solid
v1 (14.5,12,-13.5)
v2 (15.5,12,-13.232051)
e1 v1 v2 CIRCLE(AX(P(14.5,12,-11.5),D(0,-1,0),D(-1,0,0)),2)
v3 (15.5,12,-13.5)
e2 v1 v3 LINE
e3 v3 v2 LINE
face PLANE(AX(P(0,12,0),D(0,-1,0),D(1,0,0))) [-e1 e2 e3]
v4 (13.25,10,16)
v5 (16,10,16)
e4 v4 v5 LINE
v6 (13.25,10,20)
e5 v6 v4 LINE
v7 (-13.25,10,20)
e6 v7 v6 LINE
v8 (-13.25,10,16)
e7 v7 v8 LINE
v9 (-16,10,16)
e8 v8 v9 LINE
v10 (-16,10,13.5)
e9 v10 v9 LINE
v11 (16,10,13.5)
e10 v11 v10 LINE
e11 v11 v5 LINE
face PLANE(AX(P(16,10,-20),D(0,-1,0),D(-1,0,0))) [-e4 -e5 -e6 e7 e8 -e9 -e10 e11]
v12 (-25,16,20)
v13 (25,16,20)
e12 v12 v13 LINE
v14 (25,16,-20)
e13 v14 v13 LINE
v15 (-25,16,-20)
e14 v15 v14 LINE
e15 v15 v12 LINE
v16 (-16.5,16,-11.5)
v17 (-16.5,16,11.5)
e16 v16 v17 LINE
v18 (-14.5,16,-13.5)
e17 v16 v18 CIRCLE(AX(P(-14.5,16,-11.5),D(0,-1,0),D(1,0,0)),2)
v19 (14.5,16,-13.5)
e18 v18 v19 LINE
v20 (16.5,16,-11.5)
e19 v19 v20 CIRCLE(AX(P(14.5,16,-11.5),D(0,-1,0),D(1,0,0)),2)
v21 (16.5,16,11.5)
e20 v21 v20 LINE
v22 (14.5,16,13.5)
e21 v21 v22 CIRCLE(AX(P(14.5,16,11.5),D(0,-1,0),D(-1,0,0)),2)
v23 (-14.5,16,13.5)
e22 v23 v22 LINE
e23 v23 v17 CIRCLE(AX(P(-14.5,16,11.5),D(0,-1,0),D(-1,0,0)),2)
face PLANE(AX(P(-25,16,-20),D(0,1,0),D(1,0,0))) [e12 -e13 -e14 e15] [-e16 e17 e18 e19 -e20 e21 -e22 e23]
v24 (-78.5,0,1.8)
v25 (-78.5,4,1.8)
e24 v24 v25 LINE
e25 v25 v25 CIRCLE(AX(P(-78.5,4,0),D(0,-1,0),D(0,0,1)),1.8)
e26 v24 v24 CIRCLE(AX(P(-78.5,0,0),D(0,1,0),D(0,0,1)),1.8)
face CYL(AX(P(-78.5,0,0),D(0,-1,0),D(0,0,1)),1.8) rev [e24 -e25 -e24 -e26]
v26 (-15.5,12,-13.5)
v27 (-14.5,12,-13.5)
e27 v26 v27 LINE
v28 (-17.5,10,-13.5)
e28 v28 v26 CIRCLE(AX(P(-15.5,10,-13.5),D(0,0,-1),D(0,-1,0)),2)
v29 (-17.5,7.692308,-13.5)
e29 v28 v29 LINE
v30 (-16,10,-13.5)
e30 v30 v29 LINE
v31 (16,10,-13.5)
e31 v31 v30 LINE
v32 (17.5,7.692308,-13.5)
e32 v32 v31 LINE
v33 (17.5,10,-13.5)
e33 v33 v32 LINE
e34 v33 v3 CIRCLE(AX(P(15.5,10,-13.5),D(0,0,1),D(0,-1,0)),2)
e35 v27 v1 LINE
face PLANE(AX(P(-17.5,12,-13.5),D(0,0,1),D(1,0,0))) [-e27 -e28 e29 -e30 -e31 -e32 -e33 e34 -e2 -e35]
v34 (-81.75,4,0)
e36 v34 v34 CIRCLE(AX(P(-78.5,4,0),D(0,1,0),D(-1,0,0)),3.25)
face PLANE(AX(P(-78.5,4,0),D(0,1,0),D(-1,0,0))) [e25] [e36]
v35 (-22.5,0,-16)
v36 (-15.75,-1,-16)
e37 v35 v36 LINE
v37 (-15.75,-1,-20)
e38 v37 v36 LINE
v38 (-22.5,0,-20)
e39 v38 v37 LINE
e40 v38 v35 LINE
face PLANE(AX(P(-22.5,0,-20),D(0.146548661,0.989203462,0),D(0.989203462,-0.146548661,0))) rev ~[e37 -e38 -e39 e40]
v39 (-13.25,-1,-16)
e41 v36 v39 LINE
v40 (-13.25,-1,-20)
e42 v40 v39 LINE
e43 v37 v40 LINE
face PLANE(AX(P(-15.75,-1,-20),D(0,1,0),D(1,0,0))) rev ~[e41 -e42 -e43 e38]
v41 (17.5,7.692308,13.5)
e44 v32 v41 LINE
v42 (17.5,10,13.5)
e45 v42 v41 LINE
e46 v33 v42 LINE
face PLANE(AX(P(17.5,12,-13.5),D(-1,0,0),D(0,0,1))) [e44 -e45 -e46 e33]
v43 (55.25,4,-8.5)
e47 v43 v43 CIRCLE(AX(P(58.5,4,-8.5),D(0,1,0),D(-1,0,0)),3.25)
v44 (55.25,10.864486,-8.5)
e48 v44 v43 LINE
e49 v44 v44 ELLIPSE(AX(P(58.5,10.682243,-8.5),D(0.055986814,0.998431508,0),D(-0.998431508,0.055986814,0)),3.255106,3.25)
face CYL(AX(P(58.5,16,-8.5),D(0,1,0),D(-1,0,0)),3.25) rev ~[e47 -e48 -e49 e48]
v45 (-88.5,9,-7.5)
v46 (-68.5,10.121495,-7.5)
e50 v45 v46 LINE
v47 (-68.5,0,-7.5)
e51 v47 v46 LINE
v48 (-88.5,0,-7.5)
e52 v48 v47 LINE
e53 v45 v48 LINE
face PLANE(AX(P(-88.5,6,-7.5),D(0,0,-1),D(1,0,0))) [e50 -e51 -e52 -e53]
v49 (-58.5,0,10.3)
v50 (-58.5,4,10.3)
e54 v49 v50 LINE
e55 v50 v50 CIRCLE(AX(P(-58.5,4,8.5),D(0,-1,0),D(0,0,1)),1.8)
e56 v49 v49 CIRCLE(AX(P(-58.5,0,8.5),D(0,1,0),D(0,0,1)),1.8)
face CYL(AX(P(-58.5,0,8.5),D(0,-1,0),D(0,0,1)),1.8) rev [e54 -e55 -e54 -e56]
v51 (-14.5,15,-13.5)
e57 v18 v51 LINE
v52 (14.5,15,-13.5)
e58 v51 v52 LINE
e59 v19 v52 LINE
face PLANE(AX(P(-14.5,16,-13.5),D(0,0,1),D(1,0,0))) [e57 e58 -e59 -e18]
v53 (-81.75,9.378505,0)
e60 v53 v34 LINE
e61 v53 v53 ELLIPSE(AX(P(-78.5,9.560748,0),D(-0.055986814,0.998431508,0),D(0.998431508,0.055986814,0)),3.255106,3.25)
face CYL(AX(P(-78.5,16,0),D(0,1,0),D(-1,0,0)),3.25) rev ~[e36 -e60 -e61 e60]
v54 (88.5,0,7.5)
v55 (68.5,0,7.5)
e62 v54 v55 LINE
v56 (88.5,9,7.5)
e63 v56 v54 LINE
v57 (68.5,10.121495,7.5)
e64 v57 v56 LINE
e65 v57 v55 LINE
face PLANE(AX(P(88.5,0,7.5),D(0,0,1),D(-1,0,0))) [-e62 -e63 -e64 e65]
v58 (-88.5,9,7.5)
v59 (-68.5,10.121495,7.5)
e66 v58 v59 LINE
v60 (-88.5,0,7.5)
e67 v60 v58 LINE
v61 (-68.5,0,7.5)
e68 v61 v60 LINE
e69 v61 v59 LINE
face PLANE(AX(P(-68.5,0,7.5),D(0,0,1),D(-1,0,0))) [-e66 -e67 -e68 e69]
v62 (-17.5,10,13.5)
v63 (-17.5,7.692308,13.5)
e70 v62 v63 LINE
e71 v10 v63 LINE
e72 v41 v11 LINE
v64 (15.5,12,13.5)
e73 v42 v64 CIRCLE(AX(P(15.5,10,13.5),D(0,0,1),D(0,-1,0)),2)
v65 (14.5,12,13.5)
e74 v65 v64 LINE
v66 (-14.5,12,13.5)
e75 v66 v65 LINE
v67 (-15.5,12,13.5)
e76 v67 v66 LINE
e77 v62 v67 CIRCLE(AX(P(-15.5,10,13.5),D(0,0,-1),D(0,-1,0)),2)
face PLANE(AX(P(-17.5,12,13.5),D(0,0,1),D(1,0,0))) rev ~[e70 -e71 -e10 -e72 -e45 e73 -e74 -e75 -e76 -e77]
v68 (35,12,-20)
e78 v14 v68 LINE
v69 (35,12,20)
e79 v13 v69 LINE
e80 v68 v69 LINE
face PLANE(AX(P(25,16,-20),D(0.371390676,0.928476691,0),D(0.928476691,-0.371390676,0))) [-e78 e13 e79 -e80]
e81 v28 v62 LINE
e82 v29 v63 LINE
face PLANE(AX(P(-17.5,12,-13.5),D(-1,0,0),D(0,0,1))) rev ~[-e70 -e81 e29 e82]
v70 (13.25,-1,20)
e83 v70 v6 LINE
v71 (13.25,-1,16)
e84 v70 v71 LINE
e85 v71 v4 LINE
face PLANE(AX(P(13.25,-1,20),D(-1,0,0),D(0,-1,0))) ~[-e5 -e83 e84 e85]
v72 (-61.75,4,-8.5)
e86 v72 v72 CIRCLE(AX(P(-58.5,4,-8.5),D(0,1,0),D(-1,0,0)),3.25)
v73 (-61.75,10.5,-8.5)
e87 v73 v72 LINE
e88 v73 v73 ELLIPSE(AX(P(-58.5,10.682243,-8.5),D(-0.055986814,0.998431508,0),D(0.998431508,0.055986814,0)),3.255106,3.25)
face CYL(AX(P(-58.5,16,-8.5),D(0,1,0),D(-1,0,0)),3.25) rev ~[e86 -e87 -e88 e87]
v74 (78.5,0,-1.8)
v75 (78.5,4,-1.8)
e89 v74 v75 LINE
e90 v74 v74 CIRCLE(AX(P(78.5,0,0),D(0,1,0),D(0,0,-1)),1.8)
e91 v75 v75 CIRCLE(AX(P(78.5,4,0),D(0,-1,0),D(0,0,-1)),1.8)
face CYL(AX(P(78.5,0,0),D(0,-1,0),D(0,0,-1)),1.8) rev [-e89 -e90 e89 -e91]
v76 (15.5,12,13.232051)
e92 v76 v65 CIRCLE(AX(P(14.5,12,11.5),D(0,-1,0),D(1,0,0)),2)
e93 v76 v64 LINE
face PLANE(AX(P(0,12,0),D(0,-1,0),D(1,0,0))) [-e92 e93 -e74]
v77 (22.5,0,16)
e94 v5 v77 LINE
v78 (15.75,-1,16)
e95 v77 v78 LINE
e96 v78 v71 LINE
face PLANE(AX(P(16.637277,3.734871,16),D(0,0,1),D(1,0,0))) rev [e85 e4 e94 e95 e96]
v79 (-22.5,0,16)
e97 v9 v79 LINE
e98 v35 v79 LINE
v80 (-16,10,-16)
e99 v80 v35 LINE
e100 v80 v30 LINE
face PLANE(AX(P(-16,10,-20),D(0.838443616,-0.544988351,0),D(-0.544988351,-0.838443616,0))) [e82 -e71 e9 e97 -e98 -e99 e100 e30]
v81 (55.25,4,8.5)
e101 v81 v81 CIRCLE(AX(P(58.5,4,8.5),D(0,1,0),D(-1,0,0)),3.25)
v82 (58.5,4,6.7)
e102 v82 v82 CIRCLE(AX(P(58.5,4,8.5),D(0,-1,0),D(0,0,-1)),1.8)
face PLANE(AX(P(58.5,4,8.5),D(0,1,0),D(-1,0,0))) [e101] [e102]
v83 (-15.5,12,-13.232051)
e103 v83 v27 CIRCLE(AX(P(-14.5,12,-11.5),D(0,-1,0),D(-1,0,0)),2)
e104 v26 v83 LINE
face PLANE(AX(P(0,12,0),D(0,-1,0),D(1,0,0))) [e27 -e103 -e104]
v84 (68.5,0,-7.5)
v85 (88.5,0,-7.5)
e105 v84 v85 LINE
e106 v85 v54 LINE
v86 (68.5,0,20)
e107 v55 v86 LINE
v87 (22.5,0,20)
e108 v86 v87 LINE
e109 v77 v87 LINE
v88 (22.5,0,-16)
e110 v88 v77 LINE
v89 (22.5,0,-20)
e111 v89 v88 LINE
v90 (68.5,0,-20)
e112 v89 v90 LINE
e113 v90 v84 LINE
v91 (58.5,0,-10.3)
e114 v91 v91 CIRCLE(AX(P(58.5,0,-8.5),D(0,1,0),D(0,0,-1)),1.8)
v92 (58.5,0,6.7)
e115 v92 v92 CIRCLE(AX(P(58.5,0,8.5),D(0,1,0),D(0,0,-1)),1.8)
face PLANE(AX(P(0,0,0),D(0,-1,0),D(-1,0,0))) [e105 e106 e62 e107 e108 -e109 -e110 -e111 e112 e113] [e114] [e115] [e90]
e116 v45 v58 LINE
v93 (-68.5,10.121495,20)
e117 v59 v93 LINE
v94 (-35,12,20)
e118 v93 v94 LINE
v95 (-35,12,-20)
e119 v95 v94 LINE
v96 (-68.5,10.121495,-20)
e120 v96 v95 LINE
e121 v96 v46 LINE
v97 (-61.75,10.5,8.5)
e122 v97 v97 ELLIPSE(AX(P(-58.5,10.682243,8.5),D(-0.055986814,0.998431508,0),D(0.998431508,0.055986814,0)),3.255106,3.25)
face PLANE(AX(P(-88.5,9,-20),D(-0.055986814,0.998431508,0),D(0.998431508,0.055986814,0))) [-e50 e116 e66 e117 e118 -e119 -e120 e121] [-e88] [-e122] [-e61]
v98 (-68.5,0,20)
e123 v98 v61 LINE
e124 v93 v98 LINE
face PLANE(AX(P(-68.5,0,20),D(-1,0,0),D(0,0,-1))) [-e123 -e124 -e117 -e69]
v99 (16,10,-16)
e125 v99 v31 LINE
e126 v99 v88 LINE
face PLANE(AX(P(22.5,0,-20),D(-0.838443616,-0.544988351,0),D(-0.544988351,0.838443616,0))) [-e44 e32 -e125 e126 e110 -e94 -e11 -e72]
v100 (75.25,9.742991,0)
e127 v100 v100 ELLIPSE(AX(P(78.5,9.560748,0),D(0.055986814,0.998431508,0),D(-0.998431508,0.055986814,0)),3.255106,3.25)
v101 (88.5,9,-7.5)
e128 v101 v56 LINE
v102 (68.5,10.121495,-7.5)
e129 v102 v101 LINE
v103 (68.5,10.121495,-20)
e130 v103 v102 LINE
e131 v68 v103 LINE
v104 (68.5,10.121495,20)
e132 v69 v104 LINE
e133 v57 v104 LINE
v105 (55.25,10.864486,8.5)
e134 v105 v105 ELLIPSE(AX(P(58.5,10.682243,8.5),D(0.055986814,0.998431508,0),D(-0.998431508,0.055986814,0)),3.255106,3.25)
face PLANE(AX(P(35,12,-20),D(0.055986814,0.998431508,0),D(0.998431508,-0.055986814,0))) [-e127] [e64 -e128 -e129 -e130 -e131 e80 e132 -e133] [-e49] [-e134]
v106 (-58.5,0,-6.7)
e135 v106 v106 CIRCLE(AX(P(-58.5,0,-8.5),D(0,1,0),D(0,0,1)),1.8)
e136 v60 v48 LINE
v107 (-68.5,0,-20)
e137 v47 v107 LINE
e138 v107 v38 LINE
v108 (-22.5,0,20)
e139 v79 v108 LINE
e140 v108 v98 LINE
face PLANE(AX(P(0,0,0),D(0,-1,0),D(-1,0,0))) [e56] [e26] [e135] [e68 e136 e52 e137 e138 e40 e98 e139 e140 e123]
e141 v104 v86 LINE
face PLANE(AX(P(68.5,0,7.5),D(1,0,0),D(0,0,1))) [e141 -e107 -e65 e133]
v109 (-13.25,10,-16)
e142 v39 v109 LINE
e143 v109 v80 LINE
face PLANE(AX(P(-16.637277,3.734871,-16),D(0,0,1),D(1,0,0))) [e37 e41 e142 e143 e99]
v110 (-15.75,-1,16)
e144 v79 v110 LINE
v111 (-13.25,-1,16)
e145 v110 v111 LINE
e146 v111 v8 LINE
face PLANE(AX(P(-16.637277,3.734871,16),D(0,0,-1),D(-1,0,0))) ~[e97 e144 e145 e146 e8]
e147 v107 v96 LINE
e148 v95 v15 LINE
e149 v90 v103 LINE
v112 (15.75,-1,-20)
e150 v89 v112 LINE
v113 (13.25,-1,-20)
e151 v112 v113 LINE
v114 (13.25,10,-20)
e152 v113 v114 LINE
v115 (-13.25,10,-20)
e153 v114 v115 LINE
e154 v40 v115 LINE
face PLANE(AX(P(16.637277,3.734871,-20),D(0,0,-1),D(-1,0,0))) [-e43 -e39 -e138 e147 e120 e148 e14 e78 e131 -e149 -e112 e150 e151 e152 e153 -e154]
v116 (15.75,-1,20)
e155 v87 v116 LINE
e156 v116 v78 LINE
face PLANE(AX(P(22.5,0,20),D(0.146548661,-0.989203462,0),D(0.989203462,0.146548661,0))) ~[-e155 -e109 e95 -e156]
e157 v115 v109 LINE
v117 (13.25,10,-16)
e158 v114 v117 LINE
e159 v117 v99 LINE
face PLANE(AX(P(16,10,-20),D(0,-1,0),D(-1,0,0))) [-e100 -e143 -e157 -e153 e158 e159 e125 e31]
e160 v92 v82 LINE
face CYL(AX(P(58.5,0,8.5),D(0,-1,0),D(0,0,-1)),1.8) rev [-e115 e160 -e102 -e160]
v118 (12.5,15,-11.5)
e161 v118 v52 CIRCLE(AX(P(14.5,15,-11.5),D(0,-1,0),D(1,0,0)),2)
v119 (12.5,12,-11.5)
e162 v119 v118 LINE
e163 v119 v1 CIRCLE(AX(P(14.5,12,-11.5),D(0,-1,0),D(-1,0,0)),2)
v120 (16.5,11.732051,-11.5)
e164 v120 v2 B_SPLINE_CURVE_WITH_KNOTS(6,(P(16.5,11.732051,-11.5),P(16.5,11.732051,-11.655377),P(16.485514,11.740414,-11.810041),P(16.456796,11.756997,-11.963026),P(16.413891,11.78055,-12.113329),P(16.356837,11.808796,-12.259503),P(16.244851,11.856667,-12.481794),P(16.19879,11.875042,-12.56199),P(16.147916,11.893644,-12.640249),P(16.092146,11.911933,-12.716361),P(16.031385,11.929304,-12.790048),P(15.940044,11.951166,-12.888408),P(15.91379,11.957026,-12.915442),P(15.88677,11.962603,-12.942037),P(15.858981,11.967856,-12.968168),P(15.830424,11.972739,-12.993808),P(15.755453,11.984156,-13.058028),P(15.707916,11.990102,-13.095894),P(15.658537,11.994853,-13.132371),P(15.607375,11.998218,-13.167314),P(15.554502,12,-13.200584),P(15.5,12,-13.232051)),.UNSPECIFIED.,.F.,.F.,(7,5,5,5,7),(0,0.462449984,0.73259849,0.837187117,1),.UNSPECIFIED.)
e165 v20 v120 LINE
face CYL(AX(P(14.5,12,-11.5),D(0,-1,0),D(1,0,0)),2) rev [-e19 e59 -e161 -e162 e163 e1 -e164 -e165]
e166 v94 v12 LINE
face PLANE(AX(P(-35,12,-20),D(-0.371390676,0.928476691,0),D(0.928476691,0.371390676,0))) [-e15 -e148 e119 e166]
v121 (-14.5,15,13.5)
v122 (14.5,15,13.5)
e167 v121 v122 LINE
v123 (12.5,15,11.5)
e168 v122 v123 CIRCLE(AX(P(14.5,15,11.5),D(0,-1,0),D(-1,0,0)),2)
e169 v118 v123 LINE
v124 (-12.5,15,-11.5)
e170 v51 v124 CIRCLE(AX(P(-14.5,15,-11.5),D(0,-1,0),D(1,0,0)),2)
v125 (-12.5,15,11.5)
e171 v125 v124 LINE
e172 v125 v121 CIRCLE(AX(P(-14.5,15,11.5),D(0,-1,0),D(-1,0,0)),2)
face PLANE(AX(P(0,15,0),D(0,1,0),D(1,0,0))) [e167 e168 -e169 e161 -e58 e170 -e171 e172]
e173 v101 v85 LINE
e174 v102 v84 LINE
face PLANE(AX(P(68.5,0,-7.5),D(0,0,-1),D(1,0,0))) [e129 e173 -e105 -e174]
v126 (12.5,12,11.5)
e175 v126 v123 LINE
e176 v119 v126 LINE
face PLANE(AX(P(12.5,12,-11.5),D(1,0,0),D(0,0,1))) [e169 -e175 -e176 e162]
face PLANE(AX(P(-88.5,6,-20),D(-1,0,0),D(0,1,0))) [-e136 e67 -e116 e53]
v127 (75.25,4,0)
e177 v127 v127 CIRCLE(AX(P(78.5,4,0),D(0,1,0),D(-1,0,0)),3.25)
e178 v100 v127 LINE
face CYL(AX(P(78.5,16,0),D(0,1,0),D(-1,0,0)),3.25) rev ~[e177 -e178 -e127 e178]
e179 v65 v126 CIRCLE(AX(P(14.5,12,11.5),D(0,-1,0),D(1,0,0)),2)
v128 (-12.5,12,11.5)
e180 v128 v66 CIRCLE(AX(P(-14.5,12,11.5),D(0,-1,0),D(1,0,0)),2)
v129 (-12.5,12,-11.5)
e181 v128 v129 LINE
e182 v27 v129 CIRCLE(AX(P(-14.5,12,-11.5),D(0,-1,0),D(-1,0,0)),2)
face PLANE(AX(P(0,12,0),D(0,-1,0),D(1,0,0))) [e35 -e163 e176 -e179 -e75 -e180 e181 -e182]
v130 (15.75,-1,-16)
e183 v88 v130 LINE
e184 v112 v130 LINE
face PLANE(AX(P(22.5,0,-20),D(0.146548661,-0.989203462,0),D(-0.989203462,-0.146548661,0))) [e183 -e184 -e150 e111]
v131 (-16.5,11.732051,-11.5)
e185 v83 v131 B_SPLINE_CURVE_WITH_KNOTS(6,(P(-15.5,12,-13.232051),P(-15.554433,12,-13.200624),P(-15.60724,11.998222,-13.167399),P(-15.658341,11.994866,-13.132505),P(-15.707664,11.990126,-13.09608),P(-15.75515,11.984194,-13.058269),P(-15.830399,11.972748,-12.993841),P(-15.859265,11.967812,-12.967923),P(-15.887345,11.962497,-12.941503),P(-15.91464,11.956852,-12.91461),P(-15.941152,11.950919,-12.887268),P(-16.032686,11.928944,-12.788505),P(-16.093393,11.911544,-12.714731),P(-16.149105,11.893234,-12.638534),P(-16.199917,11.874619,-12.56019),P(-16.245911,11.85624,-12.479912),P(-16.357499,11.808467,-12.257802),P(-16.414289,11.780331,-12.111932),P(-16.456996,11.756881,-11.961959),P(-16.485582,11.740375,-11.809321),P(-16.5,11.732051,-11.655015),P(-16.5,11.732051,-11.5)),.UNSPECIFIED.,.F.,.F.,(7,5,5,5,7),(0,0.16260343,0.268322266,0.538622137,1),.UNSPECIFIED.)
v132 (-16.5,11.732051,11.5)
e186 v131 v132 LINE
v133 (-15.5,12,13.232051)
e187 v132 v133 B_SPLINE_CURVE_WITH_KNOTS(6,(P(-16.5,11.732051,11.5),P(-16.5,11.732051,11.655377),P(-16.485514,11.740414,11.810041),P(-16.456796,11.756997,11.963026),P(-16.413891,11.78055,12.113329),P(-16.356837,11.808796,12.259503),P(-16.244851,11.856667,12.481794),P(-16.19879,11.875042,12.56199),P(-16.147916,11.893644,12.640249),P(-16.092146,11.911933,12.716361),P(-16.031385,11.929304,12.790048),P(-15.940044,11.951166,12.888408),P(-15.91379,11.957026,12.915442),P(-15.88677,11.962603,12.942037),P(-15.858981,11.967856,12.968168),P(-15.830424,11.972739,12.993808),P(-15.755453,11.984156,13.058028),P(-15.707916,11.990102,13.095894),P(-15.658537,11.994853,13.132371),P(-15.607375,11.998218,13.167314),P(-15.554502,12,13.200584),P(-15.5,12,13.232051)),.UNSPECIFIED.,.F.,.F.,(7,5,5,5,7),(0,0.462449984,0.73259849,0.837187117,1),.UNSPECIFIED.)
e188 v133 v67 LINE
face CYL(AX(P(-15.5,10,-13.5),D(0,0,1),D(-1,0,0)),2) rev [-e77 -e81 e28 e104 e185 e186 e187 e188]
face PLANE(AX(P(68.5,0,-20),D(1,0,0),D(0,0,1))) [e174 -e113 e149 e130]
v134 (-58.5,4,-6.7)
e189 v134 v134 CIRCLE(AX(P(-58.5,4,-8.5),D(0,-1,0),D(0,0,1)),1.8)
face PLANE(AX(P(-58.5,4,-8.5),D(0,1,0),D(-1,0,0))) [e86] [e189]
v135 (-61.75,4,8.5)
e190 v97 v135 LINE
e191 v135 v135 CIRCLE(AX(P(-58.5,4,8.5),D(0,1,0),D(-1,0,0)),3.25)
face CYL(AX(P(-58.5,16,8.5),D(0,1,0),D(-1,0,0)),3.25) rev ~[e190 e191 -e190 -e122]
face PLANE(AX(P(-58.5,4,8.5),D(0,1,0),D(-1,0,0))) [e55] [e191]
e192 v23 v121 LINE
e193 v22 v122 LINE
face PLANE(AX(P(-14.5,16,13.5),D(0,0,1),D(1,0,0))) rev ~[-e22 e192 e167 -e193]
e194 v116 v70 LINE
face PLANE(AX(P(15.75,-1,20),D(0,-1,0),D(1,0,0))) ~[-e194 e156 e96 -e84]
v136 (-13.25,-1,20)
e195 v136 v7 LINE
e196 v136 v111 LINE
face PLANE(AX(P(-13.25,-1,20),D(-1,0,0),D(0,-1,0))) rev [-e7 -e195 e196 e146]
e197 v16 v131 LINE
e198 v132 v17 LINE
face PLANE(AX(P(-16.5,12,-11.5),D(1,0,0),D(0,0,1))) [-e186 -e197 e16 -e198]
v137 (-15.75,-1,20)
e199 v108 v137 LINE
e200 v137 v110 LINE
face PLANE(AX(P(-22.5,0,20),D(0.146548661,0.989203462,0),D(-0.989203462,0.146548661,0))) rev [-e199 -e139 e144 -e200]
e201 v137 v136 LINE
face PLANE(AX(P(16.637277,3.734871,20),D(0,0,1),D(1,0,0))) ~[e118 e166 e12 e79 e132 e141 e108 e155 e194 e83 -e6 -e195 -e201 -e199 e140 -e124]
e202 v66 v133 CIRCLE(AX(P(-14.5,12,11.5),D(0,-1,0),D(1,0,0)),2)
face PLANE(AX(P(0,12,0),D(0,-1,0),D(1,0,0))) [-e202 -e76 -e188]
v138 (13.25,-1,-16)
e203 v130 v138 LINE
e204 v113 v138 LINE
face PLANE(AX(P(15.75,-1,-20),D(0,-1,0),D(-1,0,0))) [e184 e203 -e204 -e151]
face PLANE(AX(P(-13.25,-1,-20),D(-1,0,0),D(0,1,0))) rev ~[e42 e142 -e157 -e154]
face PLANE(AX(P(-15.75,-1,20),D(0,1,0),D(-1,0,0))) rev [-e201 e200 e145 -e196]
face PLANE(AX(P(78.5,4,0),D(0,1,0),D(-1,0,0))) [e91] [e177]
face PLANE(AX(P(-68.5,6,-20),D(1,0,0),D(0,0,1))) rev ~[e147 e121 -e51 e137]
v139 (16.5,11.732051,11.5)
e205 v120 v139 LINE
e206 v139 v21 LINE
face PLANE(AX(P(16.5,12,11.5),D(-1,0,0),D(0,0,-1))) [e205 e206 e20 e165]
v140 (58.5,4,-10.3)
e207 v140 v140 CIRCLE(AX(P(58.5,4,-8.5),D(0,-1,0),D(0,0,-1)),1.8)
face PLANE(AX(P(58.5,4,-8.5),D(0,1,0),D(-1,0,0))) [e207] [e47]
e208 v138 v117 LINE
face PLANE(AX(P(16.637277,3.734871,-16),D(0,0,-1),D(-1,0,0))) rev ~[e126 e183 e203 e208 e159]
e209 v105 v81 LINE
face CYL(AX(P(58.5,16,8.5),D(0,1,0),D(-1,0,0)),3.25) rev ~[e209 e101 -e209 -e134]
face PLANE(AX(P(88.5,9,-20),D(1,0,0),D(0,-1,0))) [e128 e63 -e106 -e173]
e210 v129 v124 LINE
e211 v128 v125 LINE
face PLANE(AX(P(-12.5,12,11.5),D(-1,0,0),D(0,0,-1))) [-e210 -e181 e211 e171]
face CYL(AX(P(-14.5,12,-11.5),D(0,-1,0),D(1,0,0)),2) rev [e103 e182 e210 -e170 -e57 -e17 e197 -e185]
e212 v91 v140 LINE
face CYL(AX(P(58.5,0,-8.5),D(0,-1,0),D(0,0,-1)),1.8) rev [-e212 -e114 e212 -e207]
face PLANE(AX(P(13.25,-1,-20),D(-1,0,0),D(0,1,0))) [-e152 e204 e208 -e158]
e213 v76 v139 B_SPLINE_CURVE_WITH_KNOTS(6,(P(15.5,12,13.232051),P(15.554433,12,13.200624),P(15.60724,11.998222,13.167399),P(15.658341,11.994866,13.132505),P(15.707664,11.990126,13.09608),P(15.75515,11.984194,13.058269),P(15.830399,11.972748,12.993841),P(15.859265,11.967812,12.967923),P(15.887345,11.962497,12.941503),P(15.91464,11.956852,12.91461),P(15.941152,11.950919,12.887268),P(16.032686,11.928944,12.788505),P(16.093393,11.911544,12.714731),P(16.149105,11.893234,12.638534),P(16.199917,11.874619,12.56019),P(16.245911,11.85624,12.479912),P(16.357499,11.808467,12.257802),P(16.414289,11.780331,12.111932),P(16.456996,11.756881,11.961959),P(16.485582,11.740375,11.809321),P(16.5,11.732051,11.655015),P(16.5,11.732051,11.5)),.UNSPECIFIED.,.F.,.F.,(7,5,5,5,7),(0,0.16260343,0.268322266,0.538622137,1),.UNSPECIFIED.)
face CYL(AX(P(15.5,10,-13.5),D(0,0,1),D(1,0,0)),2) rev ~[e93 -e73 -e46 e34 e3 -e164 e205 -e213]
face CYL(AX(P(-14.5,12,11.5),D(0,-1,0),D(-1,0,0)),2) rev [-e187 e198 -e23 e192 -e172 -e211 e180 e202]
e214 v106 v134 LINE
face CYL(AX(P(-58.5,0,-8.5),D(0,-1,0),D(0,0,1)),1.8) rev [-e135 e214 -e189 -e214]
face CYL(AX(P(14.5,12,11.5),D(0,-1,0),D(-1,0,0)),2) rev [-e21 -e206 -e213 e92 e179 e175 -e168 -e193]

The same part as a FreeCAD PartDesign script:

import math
import FreeCAD as App
import Part
import Sketcher
Q = App.Units.Quantity


def edges_at(feature, points):
    """Names of the edges that pass closest to the given points."""
    edges = feature.Shape.Edges
    near = lambda p: min(range(len(edges)), key=lambda i: edges[i].distToShape(Part.Vertex(*p))[0])
    return sorted({f"Edge{near(p) + 1}" for p in points})


def add_polygon(sketch, points):
    """Adds a closed chain of lines whose ends are joined by coincident constraints."""
    first, n = sketch.GeometryCount, len(points)
    for a, b in zip(points, points[1:] + points[:1]):
        sketch.addGeometry(Part.LineSegment(App.Vector(*a, 0), App.Vector(*b, 0)), False)
    for i in range(n):
        sketch.addConstraint(Sketcher.Constraint("Coincident", first + i, 2, first + (i + 1) % n, 1))

doc = App.newDocument("Part")
body = doc.addObject("PartDesign::Body", "Body")

sketch1 = body.newObject("Sketcher::SketchObject", "Sketch")
sketch1.AttachmentSupport = (doc.getObject("XZ_Plane"), [""])
sketch1.MapMode = "FlatFace"
add_polygon(sketch1, [(68.5, -7.5), (68.5, -20), (-68.5, -20), (-68.5, -7.5), (-88.5, -7.5), (-88.5, 7.5), (-68.5, 7.5), (-68.5, 20), (68.5, 20), (68.5, 7.5), (88.5, 7.5), (88.5, -7.5)])
sketch1.addGeometry(Part.Circle(App.Vector(58.5, 8.5, 0), App.Vector(0, 0, 1), 1.8), False)
sketch1.addGeometry(Part.Circle(App.Vector(-58.5, 8.5, 0), App.Vector(0, 0, 1), 1.8), False)
sketch1.addGeometry(Part.Circle(App.Vector(78.5, 0, 0), App.Vector(0, 0, 1), 1.8), False)
sketch1.addGeometry(Part.Circle(App.Vector(58.5, -8.5, 0), App.Vector(0, 0, 1), 1.8), False)
sketch1.addGeometry(Part.Circle(App.Vector(-78.5, 0, 0), App.Vector(0, 0, 1), 1.8), False)
sketch1.addGeometry(Part.Circle(App.Vector(-58.5, -8.5, 0), App.Vector(0, 0, 1), 1.8), False)
sketch1.addConstraint(Sketcher.Constraint("Vertical", 0))
sketch1.addConstraint(Sketcher.Constraint("Horizontal", 1))
sketch1.addConstraint(Sketcher.Constraint("Vertical", 2))
sketch1.addConstraint(Sketcher.Constraint("Horizontal", 3))
sketch1.addConstraint(Sketcher.Constraint("Vertical", 4))
sketch1.addConstraint(Sketcher.Constraint("Horizontal", 5))
sketch1.addConstraint(Sketcher.Constraint("Vertical", 6))
sketch1.addConstraint(Sketcher.Constraint("Horizontal", 7))
sketch1.addConstraint(Sketcher.Constraint("Vertical", 8))
sketch1.addConstraint(Sketcher.Constraint("Horizontal", 9))
sketch1.addConstraint(Sketcher.Constraint("Vertical", 10))
sketch1.addConstraint(Sketcher.Constraint("Horizontal", 11))
sketch1.addConstraint(Sketcher.Constraint("Equal", 12, 13))
sketch1.addConstraint(Sketcher.Constraint("Equal", 13, 14))
sketch1.addConstraint(Sketcher.Constraint("Equal", 14, 15))
sketch1.addConstraint(Sketcher.Constraint("Equal", 15, 16))
sketch1.addConstraint(Sketcher.Constraint("Equal", 16, 17))
sketch1.addConstraint(Sketcher.Constraint("Symmetric", 13, 3, 15, 3, -1, 1))
sketch1.addConstraint(Sketcher.Constraint("Symmetric", 14, 3, 16, 3, -1, 1))
sketch1.addConstraint(Sketcher.Constraint("Symmetric", 12, 3, 17, 3, -1, 1))
sketch1.addConstraint(Sketcher.Constraint("Symmetric", 0, 2, 6, 2, -1, 1))
sketch1.addConstraint(Sketcher.Constraint("Symmetric", 2, 2, 8, 2, -1, 1))
sketch1.addConstraint(Sketcher.Constraint("Symmetric", 4, 2, 10, 2, -1, 1))
sketch1.addConstraint(Sketcher.Constraint("Symmetric", 12, 3, 13, 3, -2))
sketch1.addConstraint(Sketcher.Constraint("Symmetric", 5, 2, 8, 2, -2))
sketch1.addConstraint(Sketcher.Constraint("PointOnObject", 14, 3, -1))
sketch1.addConstraint(Sketcher.Constraint("Diameter", 12, Q("3.6 mm")))
sketch1.addConstraint(Sketcher.Constraint("DistanceX", 1, 2, 1, 1, Q("137 mm")))
sketch1.addConstraint(Sketcher.Constraint("DistanceX", 3, 2, 3, 1, Q("20 mm")))
sketch1.addConstraint(Sketcher.Constraint("DistanceY", 4, 1, 4, 2, Q("15 mm")))
sketch1.addConstraint(Sketcher.Constraint("DistanceY", 0, 2, 0, 1, Q("12.5 mm")))
sketch1.addConstraint(Sketcher.Constraint("DistanceX", 13, 3, 12, 3, Q("117 mm")))
sketch1.addConstraint(Sketcher.Constraint("DistanceX", 12, 3, 14, 3, Q("20 mm")))
sketch1.addConstraint(Sketcher.Constraint("DistanceY", 15, 3, 12, 3, Q("17 mm")))
pad1 = body.newObject("PartDesign::Pad", "Pad")
pad1.Profile = sketch1
pad1.Length = 6
pad1.Reversed = True

sketch2 = body.newObject("Sketcher::SketchObject", "Sketch001")
sketch2.AttachmentSupport = (doc.getObject("XY_Plane"), [""])
sketch2.MapMode = "FlatFace"
sketch2.AttachmentOffset = App.Placement(App.Vector(0, 0, -20), App.Rotation())
add_polygon(sketch2, [(88.5, 6), (-88.5, 6), (-88.5, 9), (-35, 12), (-25, 16), (25, 16), (35, 12), (88.5, 9)])
sketch2.addConstraint(Sketcher.Constraint("Horizontal", 0))
sketch2.addConstraint(Sketcher.Constraint("Vertical", 1))
sketch2.addConstraint(Sketcher.Constraint("Horizontal", 4))
sketch2.addConstraint(Sketcher.Constraint("Vertical", 7))
sketch2.addConstraint(Sketcher.Constraint("Symmetric", 2, 2, 5, 2, -2))
sketch2.addConstraint(Sketcher.Constraint("Symmetric", 1, 2, 6, 2, -2))
sketch2.addConstraint(Sketcher.Constraint("Equal", 3, 5))
sketch2.addConstraint(Sketcher.Constraint("DistanceX", 0, 2, 0, 1, Q("177 mm")))
sketch2.addConstraint(Sketcher.Constraint("DistanceX", 4, 1, 4, 2, Q("50 mm")))
sketch2.addConstraint(Sketcher.Constraint("DistanceY", 1, 1, 1, 2, Q("3 mm")))
sketch2.addConstraint(Sketcher.Constraint("DistanceY", -1, 1, 0, 2, Q("6 mm")))
sketch2.addConstraint(Sketcher.Constraint("DistanceX", 2, 2, -1, 1, Q("35 mm")))
sketch2.addConstraint(Sketcher.Constraint("DistanceY", -1, 1, 2, 2, Q("12 mm")))
sketch2.addConstraint(Sketcher.Constraint("DistanceY", -1, 1, 3, 2, Q("16 mm")))
pad2 = body.newObject("PartDesign::Pad", "Pad001")
pad2.Profile = sketch2
pad2.Length = 40

sketch3 = body.newObject("Sketcher::SketchObject", "Sketch002")
sketch3.AttachmentSupport = (doc.getObject("XZ_Plane"), [""])
sketch3.MapMode = "FlatFace"
sketch3.AttachmentOffset = App.Placement(App.Vector(0, 0, -6), App.Rotation())
add_polygon(sketch3, [(-88, 20), (-88, 8), (-68, 8), (-68, 20)])
sketch3.addConstraint(Sketcher.Constraint("Vertical", 0))
sketch3.addConstraint(Sketcher.Constraint("Horizontal", 1))
sketch3.addConstraint(Sketcher.Constraint("Vertical", 2))
sketch3.addConstraint(Sketcher.Constraint("Horizontal", 3))
sketch3.addConstraint(Sketcher.Constraint("DistanceX", 1, 1, 1, 2, Q("20 mm")))
sketch3.addConstraint(Sketcher.Constraint("DistanceY", 0, 2, 0, 1, Q("12.5 mm")))
sketch3.addConstraint(Sketcher.Constraint("DistanceY", -1, 1, 2, 2, Q("20 mm")))
sketch3.addConstraint(Sketcher.Constraint("DistanceX", 0, 2, -1, 1, Q("88.5 mm")))
pocket1 = body.newObject("PartDesign::Pocket", "Pocket")
pocket1.Profile = sketch3
pocket1.Type = "UpToFirst"

sketch4 = body.newObject("Sketcher::SketchObject", "Sketch003")
sketch4.AttachmentSupport = (doc.getObject("XZ_Plane"), [""])
sketch4.MapMode = "FlatFace"
sketch4.AttachmentOffset = App.Placement(App.Vector(0, 0, -6), App.Rotation())
add_polygon(sketch4, [(-88, -8), (-88, -20), (-68, -20), (-68, -8)])
sketch4.addConstraint(Sketcher.Constraint("Vertical", 0))
sketch4.addConstraint(Sketcher.Constraint("Horizontal", 1))
sketch4.addConstraint(Sketcher.Constraint("Vertical", 2))
sketch4.addConstraint(Sketcher.Constraint("Horizontal", 3))
sketch4.addConstraint(Sketcher.Constraint("DistanceX", 1, 1, 1, 2, Q("20 mm")))
sketch4.addConstraint(Sketcher.Constraint("DistanceY", 0, 2, 0, 1, Q("12.5 mm")))
sketch4.addConstraint(Sketcher.Constraint("DistanceY", 0, 2, -1, 1, Q("20 mm")))
sketch4.addConstraint(Sketcher.Constraint("DistanceX", 0, 2, -1, 1, Q("88.5 mm")))
pocket2 = body.newObject("PartDesign::Pocket", "Pocket001")
pocket2.Profile = sketch4
pocket2.Type = "UpToFirst"

sketch5 = body.newObject("Sketcher::SketchObject", "Sketch004")
sketch5.AttachmentSupport = (doc.getObject("XZ_Plane"), [""])
sketch5.MapMode = "FlatFace"
sketch5.AttachmentOffset = App.Placement(App.Vector(0, 0, -6), App.Rotation())
add_polygon(sketch5, [(68, 20), (68, 8), (88, 8), (88, 20)])
sketch5.addConstraint(Sketcher.Constraint("Vertical", 0))
sketch5.addConstraint(Sketcher.Constraint("Horizontal", 1))
sketch5.addConstraint(Sketcher.Constraint("Vertical", 2))
sketch5.addConstraint(Sketcher.Constraint("Horizontal", 3))
sketch5.addConstraint(Sketcher.Constraint("DistanceX", 1, 1, 1, 2, Q("20 mm")))
sketch5.addConstraint(Sketcher.Constraint("DistanceY", 0, 2, 0, 1, Q("12.5 mm")))
sketch5.addConstraint(Sketcher.Constraint("DistanceY", -1, 1, 2, 2, Q("20 mm")))
sketch5.addConstraint(Sketcher.Constraint("DistanceX", -1, 1, 0, 2, Q("68.5 mm")))
pocket3 = body.newObject("PartDesign::Pocket", "Pocket002")
pocket3.Profile = sketch5
pocket3.Type = "UpToFirst"

sketch6 = body.newObject("Sketcher::SketchObject", "Sketch005")
sketch6.AttachmentSupport = (doc.getObject("XZ_Plane"), [""])
sketch6.MapMode = "FlatFace"
sketch6.AttachmentOffset = App.Placement(App.Vector(0, 0, -6), App.Rotation())
add_polygon(sketch6, [(68, -8), (68, -20), (88, -20), (88, -8)])
sketch6.addConstraint(Sketcher.Constraint("Vertical", 0))
sketch6.addConstraint(Sketcher.Constraint("Horizontal", 1))
sketch6.addConstraint(Sketcher.Constraint("Vertical", 2))
sketch6.addConstraint(Sketcher.Constraint("Horizontal", 3))
sketch6.addConstraint(Sketcher.Constraint("DistanceX", 1, 1, 1, 2, Q("20 mm")))
sketch6.addConstraint(Sketcher.Constraint("DistanceY", 0, 2, 0, 1, Q("12.5 mm")))
sketch6.addConstraint(Sketcher.Constraint("DistanceY", 0, 2, -1, 1, Q("20 mm")))
sketch6.addConstraint(Sketcher.Constraint("DistanceX", -1, 1, 0, 2, Q("68.5 mm")))
pocket4 = body.newObject("PartDesign::Pocket", "Pocket003")
pocket4.Profile = sketch6
pocket4.Type = "UpToFirst"

sketch7 = body.newObject("Sketcher::SketchObject", "Sketch006")
sketch7.AttachmentSupport = (doc.getObject("XZ_Plane"), [""])
sketch7.MapMode = "FlatFace"
sketch7.AttachmentOffset = App.Placement(App.Vector(0, 0, -16), App.Rotation())
sketch7.addGeometry(Part.Circle(App.Vector(-58.5, -8.5, 0), App.Vector(0, 0, 1), 3.2), False)
sketch7.addGeometry(Part.Circle(App.Vector(-78.5, 0, 0), App.Vector(0, 0, 1), 3.2), False)
sketch7.addGeometry(Part.Circle(App.Vector(-58.5, 8.5, 0), App.Vector(0, 0, 1), 3.2), False)
sketch7.addGeometry(Part.Circle(App.Vector(58.5, -8.5, 0), App.Vector(0, 0, 1), 3.2), False)
sketch7.addGeometry(Part.Circle(App.Vector(58.5, 8.5, 0), App.Vector(0, 0, 1), 3.2), False)
sketch7.addGeometry(Part.Circle(App.Vector(78.5, 0, 0), App.Vector(0, 0, 1), 3.2), False)
sketch7.addConstraint(Sketcher.Constraint("Equal", 0, 1))
sketch7.addConstraint(Sketcher.Constraint("Equal", 1, 2))
sketch7.addConstraint(Sketcher.Constraint("Equal", 2, 3))
sketch7.addConstraint(Sketcher.Constraint("Equal", 3, 4))
sketch7.addConstraint(Sketcher.Constraint("Equal", 4, 5))
sketch7.addConstraint(Sketcher.Constraint("Symmetric", 2, 3, 3, 3, -1, 1))
sketch7.addConstraint(Sketcher.Constraint("Symmetric", 0, 3, 4, 3, -1, 1))
sketch7.addConstraint(Sketcher.Constraint("Symmetric", 1, 3, 5, 3, -1, 1))
sketch7.addConstraint(Sketcher.Constraint("Symmetric", 0, 3, 3, 3, -2))
sketch7.addConstraint(Sketcher.Constraint("PointOnObject", 1, 3, -1))
sketch7.addConstraint(Sketcher.Constraint("Diameter", 0, Q("6.5 mm")))
sketch7.addConstraint(Sketcher.Constraint("DistanceX", 1, 3, 0, 3, Q("20 mm")))
sketch7.addConstraint(Sketcher.Constraint("DistanceY", 0, 3, 2, 3, Q("17 mm")))
sketch7.addConstraint(Sketcher.Constraint("DistanceX", 0, 3, 3, 3, Q("117 mm")))
pocket5 = body.newObject("PartDesign::Pocket", "Pocket004")
pocket5.Profile = sketch7
pocket5.Length = 12
pocket5.Reversed = True

sketch8 = body.newObject("Sketcher::SketchObject", "Sketch007")
sketch8.AttachmentSupport = (doc.getObject("XY_Plane"), [""])
sketch8.MapMode = "FlatFace"
sketch8.AttachmentOffset = App.Placement(App.Vector(0, 0, -20), App.Rotation())
add_polygon(sketch8, [(16, 10), (22, 0), (-22, 0), (-16, 10)])
sketch8.addConstraint(Sketcher.Constraint("Horizontal", 1))
sketch8.addConstraint(Sketcher.Constraint("Horizontal", 3))
sketch8.addConstraint(Sketcher.Constraint("Symmetric", 0, 2, 1, 2, -1, 1))
sketch8.addConstraint(Sketcher.Constraint("Equal", 0, 2))
sketch8.addConstraint(Sketcher.Constraint("DistanceX", 1, 2, 1, 1, Q("45 mm")))
sketch8.addConstraint(Sketcher.Constraint("DistanceX", 3, 1, 3, 2, Q("32 mm")))
sketch8.addConstraint(Sketcher.Constraint("DistanceY", -1, 1, 2, 2, Q("10 mm")))
pocket6 = body.newObject("PartDesign::Pocket", "Pocket005")
pocket6.Profile = sketch8
pocket6.Type = "UpToFirst"
pocket6.Reversed = True

sketch9 = body.newObject("Sketcher::SketchObject", "Sketch008")
sketch9.AttachmentSupport = (doc.getObject("XZ_Plane"), [""])
sketch9.MapMode = "FlatFace"
sketch9.AttachmentOffset = App.Placement(App.Vector(0, 0, -12), App.Rotation())
add_polygon(sketch9, [(-18, 14), (-18, -14), (18, -14), (18, 14)])
sketch9.addConstraint(Sketcher.Constraint("Vertical", 0))
sketch9.addConstraint(Sketcher.Constraint("Horizontal", 1))
sketch9.addConstraint(Sketcher.Constraint("Vertical", 2))
sketch9.addConstraint(Sketcher.Constraint("Horizontal", 3))
sketch9.addConstraint(Sketcher.Constraint("Symmetric", 0, 2, 2, 2, -1, 1))
sketch9.addConstraint(Sketcher.Constraint("DistanceX", 1, 1, 1, 2, Q("35 mm")))
sketch9.addConstraint(Sketcher.Constraint("DistanceY", 0, 2, 0, 1, Q("27 mm")))
pocket7 = body.newObject("PartDesign::Pocket", "Pocket006")
pocket7.Profile = sketch9
pocket7.Length = 4.307692
pocket7.Reversed = True
doc.recompute()

fillet = body.newObject("PartDesign::Fillet", "Fillet")
fillet.Base = (pocket7, edges_at(pocket7, [(-17.5, 12, 0), (17.5, 12, 0)]))
fillet.Radius = 2

sketch10 = body.newObject("Sketcher::SketchObject", "Sketch009")
sketch10.AttachmentSupport = (doc.getObject("XY_Plane"), [""])
sketch10.MapMode = "FlatFace"
sketch10.AttachmentOffset = App.Placement(App.Vector(0, 0, -20), App.Rotation())
add_polygon(sketch10, [(22.5, 0), (15.8, -1), (13.2, -1), (13.2, 10), (16, 10)])
add_polygon(sketch10, [(-22.5, 0), (-16, 10), (-13.2, 10), (-13.2, -1), (-15.8, -1)])
sketch10.addConstraint(Sketcher.Constraint("Horizontal", 1))
sketch10.addConstraint(Sketcher.Constraint("Vertical", 2))
sketch10.addConstraint(Sketcher.Constraint("Horizontal", 3))
sketch10.addConstraint(Sketcher.Constraint("Horizontal", 6))
sketch10.addConstraint(Sketcher.Constraint("Vertical", 7))
sketch10.addConstraint(Sketcher.Constraint("Horizontal", 8))
sketch10.addConstraint(Sketcher.Constraint("Symmetric", 4, 2, 9, 2, -1, 1))
sketch10.addConstraint(Sketcher.Constraint("Symmetric", 3, 2, 5, 2, -2))
sketch10.addConstraint(Sketcher.Constraint("Symmetric", 1, 2, 7, 2, -2))
sketch10.addConstraint(Sketcher.Constraint("PointOnObject", 4, 2, -1))
sketch10.addConstraint(Sketcher.Constraint("Equal", 1, 8))
sketch10.addConstraint(Sketcher.Constraint("DistanceY", 2, 1, 2, 2, Q("11 mm")))
sketch10.addConstraint(Sketcher.Constraint("DistanceX", 1, 2, 1, 1, Q("2.5 mm")))
sketch10.addConstraint(Sketcher.Constraint("DistanceY", 0, 2, -1, 1, Q("1 mm")))
sketch10.addConstraint(Sketcher.Constraint("DistanceX", -1, 1, 3, 2, Q("16 mm")))
sketch10.addConstraint(Sketcher.Constraint("DistanceX", 6, 2, 0, 2, Q("29 mm")))
sketch10.addConstraint(Sketcher.Constraint("DistanceX", -1, 1, 4, 2, Q("22.5 mm")))
pad3 = body.newObject("PartDesign::Pad", "Pad002")
pad3.Profile = sketch10
pad3.Length = 4
doc.recompute()

mirrored = body.newObject("PartDesign::Mirrored", "Mirrored")
mirrored.Originals = [pad3]
mirrored.MirrorPlane = (doc.getObject("XY_Plane"), [""])
body.Tip = mirrored

sketch11 = body.newObject("Sketcher::SketchObject", "Sketch010")
sketch11.AttachmentSupport = (doc.getObject("XZ_Plane"), [""])
sketch11.MapMode = "FlatFace"
sketch11.AttachmentOffset = App.Placement(App.Vector(0, 0, -12), App.Rotation())
sketch11.addGeometry(Part.LineSegment(App.Vector(-12.5, -11.5, 0), App.Vector(-12.5, 11.5, 0)), False)
sketch11.addGeometry(Part.ArcOfCircle(Part.Circle(App.Vector(-14.5, 11.5, 0), App.Vector(0, 0, 1), 2), math.radians(0), math.radians(180)), False)
sketch11.addGeometry(Part.LineSegment(App.Vector(-16.5, 11.5, 0), App.Vector(-16.5, -11.5, 0)), False)
sketch11.addGeometry(Part.ArcOfCircle(Part.Circle(App.Vector(-14.5, -11.5, 0), App.Vector(0, 0, 1), 2), math.radians(180), math.radians(360)), False)
sketch11.addConstraint(Sketcher.Constraint("Tangent", 0, 2, 1, 1))
sketch11.addConstraint(Sketcher.Constraint("Tangent", 1, 2, 2, 1))
sketch11.addConstraint(Sketcher.Constraint("Tangent", 2, 2, 3, 1))
sketch11.addConstraint(Sketcher.Constraint("Tangent", 3, 2, 0, 1))
sketch11.addConstraint(Sketcher.Constraint("Vertical", 0))
sketch11.addConstraint(Sketcher.Constraint("Vertical", 2))
sketch11.addConstraint(Sketcher.Constraint("Radius", 1, Q("2 mm")))
sketch11.addConstraint(Sketcher.Constraint("DistanceY", 0, 1, 0, 2, Q("23 mm")))
sketch11.addConstraint(Sketcher.Constraint("DistanceX", 1, 3, -1, 1, Q("14.5 mm")))
sketch11.addConstraint(Sketcher.Constraint("DistanceY", -1, 1, 1, 3, Q("11.5 mm")))
pocket8 = body.newObject("PartDesign::Pocket", "Pocket007")
pocket8.Profile = sketch11
pocket8.Type = "UpToFirst"

sketch12 = body.newObject("Sketcher::SketchObject", "Sketch011")
sketch12.AttachmentSupport = (doc.getObject("XZ_Plane"), [""])
sketch12.MapMode = "FlatFace"
sketch12.AttachmentOffset = App.Placement(App.Vector(0, 0, -12), App.Rotation())
sketch12.addGeometry(Part.LineSegment(App.Vector(16.5, -11.5, 0), App.Vector(16.5, 11.5, 0)), False)
sketch12.addGeometry(Part.ArcOfCircle(Part.Circle(App.Vector(14.5, 11.5, 0), App.Vector(0, 0, 1), 2), math.radians(0), math.radians(180)), False)
sketch12.addGeometry(Part.LineSegment(App.Vector(12.5, 11.5, 0), App.Vector(12.5, -11.5, 0)), False)
sketch12.addGeometry(Part.ArcOfCircle(Part.Circle(App.Vector(14.5, -11.5, 0), App.Vector(0, 0, 1), 2), math.radians(180), math.radians(360)), False)
sketch12.addConstraint(Sketcher.Constraint("Tangent", 0, 2, 1, 1))
sketch12.addConstraint(Sketcher.Constraint("Tangent", 1, 2, 2, 1))
sketch12.addConstraint(Sketcher.Constraint("Tangent", 2, 2, 3, 1))
sketch12.addConstraint(Sketcher.Constraint("Tangent", 3, 2, 0, 1))
sketch12.addConstraint(Sketcher.Constraint("Vertical", 0))
sketch12.addConstraint(Sketcher.Constraint("Vertical", 2))
sketch12.addConstraint(Sketcher.Constraint("Radius", 1, Q("2 mm")))
sketch12.addConstraint(Sketcher.Constraint("DistanceY", 0, 1, 0, 2, Q("23 mm")))
sketch12.addConstraint(Sketcher.Constraint("DistanceX", -1, 1, 1, 3, Q("14.5 mm")))
sketch12.addConstraint(Sketcher.Constraint("DistanceY", -1, 1, 1, 3, Q("11.5 mm")))
pocket9 = body.newObject("PartDesign::Pocket", "Pocket008")
pocket9.Profile = sketch12
pocket9.Type = "UpToFirst"

sketch13 = body.newObject("Sketcher::SketchObject", "Sketch012")
sketch13.AttachmentSupport = (doc.getObject("XZ_Plane"), [""])
sketch13.MapMode = "FlatFace"
sketch13.AttachmentOffset = App.Placement(App.Vector(0, 0, -12), App.Rotation())
sketch13.addGeometry(Part.LineSegment(App.Vector(-12.5, -11.5, 0), App.Vector(-12.5, 11.5, 0)), False)
sketch13.addGeometry(Part.ArcOfCircle(Part.Circle(App.Vector(-14.5, 11.5, 0), App.Vector(0, 0, 1), 2), math.radians(0), math.radians(180)), False)
sketch13.addGeometry(Part.LineSegment(App.Vector(-16.5, 11.5, 0), App.Vector(-16.5, -11.5, 0)), False)
sketch13.addGeometry(Part.ArcOfCircle(Part.Circle(App.Vector(-14.5, -11.5, 0), App.Vector(0, 0, 1), 2), math.radians(180), math.radians(360)), False)
sketch13.addConstraint(Sketcher.Constraint("Tangent", 0, 2, 1, 1))
sketch13.addConstraint(Sketcher.Constraint("Tangent", 1, 2, 2, 1))
sketch13.addConstraint(Sketcher.Constraint("Tangent", 2, 2, 3, 1))
sketch13.addConstraint(Sketcher.Constraint("Tangent", 3, 2, 0, 1))
sketch13.addConstraint(Sketcher.Constraint("Vertical", 0))
sketch13.addConstraint(Sketcher.Constraint("Vertical", 2))
sketch13.addConstraint(Sketcher.Constraint("Radius", 1, Q("2 mm")))
sketch13.addConstraint(Sketcher.Constraint("DistanceY", 0, 1, 0, 2, Q("23 mm")))
sketch13.addConstraint(Sketcher.Constraint("DistanceX", 1, 3, -1, 1, Q("14.5 mm")))
sketch13.addConstraint(Sketcher.Constraint("DistanceY", -1, 1, 1, 3, Q("11.5 mm")))
pocket10 = body.newObject("PartDesign::Pocket", "Pocket009")
pocket10.Profile = sketch13
pocket10.Length = 0.267949
pocket10.Reversed = True

sketch14 = body.newObject("Sketcher::SketchObject", "Sketch013")
sketch14.AttachmentSupport = (doc.getObject("XZ_Plane"), [""])
sketch14.MapMode = "FlatFace"
sketch14.AttachmentOffset = App.Placement(App.Vector(0, 0, -12), App.Rotation())
sketch14.addGeometry(Part.LineSegment(App.Vector(16.5, -11.5, 0), App.Vector(16.5, 11.5, 0)), False)
sketch14.addGeometry(Part.ArcOfCircle(Part.Circle(App.Vector(14.5, 11.5, 0), App.Vector(0, 0, 1), 2), math.radians(0), math.radians(180)), False)
sketch14.addGeometry(Part.LineSegment(App.Vector(12.5, 11.5, 0), App.Vector(12.5, -11.5, 0)), False)
sketch14.addGeometry(Part.ArcOfCircle(Part.Circle(App.Vector(14.5, -11.5, 0), App.Vector(0, 0, 1), 2), math.radians(180), math.radians(360)), False)
sketch14.addConstraint(Sketcher.Constraint("Tangent", 0, 2, 1, 1))
sketch14.addConstraint(Sketcher.Constraint("Tangent", 1, 2, 2, 1))
sketch14.addConstraint(Sketcher.Constraint("Tangent", 2, 2, 3, 1))
sketch14.addConstraint(Sketcher.Constraint("Tangent", 3, 2, 0, 1))
sketch14.addConstraint(Sketcher.Constraint("Vertical", 0))
sketch14.addConstraint(Sketcher.Constraint("Vertical", 2))
sketch14.addConstraint(Sketcher.Constraint("Radius", 1, Q("2 mm")))
sketch14.addConstraint(Sketcher.Constraint("DistanceY", 0, 1, 0, 2, Q("23 mm")))
sketch14.addConstraint(Sketcher.Constraint("DistanceX", -1, 1, 1, 3, Q("14.5 mm")))
sketch14.addConstraint(Sketcher.Constraint("DistanceY", -1, 1, 1, 3, Q("11.5 mm")))
pocket11 = body.newObject("PartDesign::Pocket", "Pocket010")
pocket11.Profile = sketch14
pocket11.Length = 0.267949
pocket11.Reversed = True

sketch15 = body.newObject("Sketcher::SketchObject", "Sketch014")
sketch15.AttachmentSupport = (doc.getObject("XZ_Plane"), [""])
sketch15.MapMode = "FlatFace"
sketch15.AttachmentOffset = App.Placement(App.Vector(0, 0, -16), App.Rotation())
add_polygon(sketch15, [(-14, -14), (-14, 14), (14, 14), (14, -14)])
sketch15.addConstraint(Sketcher.Constraint("Vertical", 0))
sketch15.addConstraint(Sketcher.Constraint("Horizontal", 1))
sketch15.addConstraint(Sketcher.Constraint("Vertical", 2))
sketch15.addConstraint(Sketcher.Constraint("Horizontal", 3))
sketch15.addConstraint(Sketcher.Constraint("Symmetric", 0, 2, 2, 2, -1, 1))
sketch15.addConstraint(Sketcher.Constraint("DistanceX", 1, 1, 1, 2, Q("29 mm")))
sketch15.addConstraint(Sketcher.Constraint("DistanceY", 0, 1, 0, 2, Q("27 mm")))
pocket12 = body.newObject("PartDesign::Pocket", "Pocket011")
pocket12.Profile = sketch15
pocket12.Length = 1
pocket12.Reversed = True

doc.recompute()
